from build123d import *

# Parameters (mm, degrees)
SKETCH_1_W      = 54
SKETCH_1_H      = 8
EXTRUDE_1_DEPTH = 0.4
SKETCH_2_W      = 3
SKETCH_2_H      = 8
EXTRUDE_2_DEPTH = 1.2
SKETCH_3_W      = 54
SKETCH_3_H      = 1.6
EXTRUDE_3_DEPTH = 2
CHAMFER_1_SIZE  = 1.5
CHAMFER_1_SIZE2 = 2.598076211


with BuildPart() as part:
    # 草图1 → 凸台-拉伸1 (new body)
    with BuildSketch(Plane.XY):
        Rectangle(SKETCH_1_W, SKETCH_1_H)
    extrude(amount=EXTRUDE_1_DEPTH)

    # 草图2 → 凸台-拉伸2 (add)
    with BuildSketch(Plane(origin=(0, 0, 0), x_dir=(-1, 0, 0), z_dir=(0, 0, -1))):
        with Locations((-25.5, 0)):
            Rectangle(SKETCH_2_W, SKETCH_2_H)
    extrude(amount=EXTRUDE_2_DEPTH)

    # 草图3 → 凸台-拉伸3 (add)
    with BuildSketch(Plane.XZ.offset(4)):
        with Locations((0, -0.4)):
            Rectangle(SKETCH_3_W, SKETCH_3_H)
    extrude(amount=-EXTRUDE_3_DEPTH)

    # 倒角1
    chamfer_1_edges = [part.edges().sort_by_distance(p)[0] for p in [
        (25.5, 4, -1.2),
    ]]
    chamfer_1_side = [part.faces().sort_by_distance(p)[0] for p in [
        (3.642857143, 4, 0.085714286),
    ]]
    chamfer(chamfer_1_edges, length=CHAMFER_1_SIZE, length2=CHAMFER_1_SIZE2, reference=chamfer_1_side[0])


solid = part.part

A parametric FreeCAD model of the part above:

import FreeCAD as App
import Part
import Sketcher


def edges_at(feature, points):
    """Names of the edges that pass closest to the given points."""
    edges = feature.Shape.Edges
    near = lambda p: min(range(len(edges)), key=lambda i: edges[i].distToShape(Part.Vertex(*p))[0])
    return sorted({f"Edge{near(p) + 1}" for p in points})

doc = App.newDocument("Part")
params = doc.addObject("Spreadsheet::Sheet", "Params")
for row, (alias, value) in enumerate([
    ("sketch1_width", "54 mm"),
    ("sketch1_height", "8 mm"),
    ("pad1_length", "0.4 mm"),
    ("sketch2_width", "3 mm"),
    ("sketch2_height", "8 mm"),
    ("pad2_length", "1.2 mm"),
    ("sketch3_width", "54 mm"),
    ("sketch3_height", "1.6 mm"),
    ("pad3_length", "2 mm"),
    ("chamfer_size", "1.5 mm"),
    ("chamfer_size2", "2.598076 mm"),
], start=1):
    params.set(f"A{row}", alias)
    params.set(f"B{row}", "=" + value)
    params.setAlias(f"B{row}", alias)

body = doc.addObject("PartDesign::Body", "Body")

sketch1 = body.newObject("Sketcher::SketchObject", "Sketch")
sketch1.AttachmentSupport = (doc.getObject("XY_Plane"), [""])
sketch1.MapMode = "FlatFace"
sketch1.addGeometry([
    Part.LineSegment(App.Vector(-27, 4, 0), App.Vector(-27, -4, 0)),
    Part.LineSegment(App.Vector(-27, -4, 0), App.Vector(27, -4, 0)),
    Part.LineSegment(App.Vector(27, -4, 0), App.Vector(27, 4, 0)),
    Part.LineSegment(App.Vector(27, 4, 0), App.Vector(-27, 4, 0)),
], False)
sketch1.addConstraint([
    Sketcher.Constraint("Coincident", 0, 2, 1, 1),
    Sketcher.Constraint("Coincident", 1, 2, 2, 1),
    Sketcher.Constraint("Coincident", 2, 2, 3, 1),
    Sketcher.Constraint("Coincident", 3, 2, 0, 1),
    Sketcher.Constraint("Vertical", 0),
    Sketcher.Constraint("Horizontal", 1),
    Sketcher.Constraint("Vertical", 2),
    Sketcher.Constraint("Horizontal", 3),
    Sketcher.Constraint("Symmetric", 0, 2, 2, 2, -1, 1),
    Sketcher.Constraint("DistanceX", 1, 1, 1, 2, 54.0),
    Sketcher.Constraint("DistanceY", 0, 2, 0, 1, 8.0),
])
sketch1.setExpression("Constraints[9]", "Params.sketch1_width")
sketch1.setExpression("Constraints[10]", "Params.sketch1_height")
pad1 = body.newObject("PartDesign::Pad", "Pad")
pad1.Profile = sketch1
pad1.setExpression("Length", "Params.pad1_length")

sketch2 = body.newObject("Sketcher::SketchObject", "Sketch001")
sketch2.AttachmentSupport = (doc.getObject("XY_Plane"), [""])
sketch2.MapMode = "FlatFace"
sketch2.addGeometry([
    Part.LineSegment(App.Vector(27, 4, 0), App.Vector(27, -4, 0)),
    Part.LineSegment(App.Vector(27, -4, 0), App.Vector(24, -4, 0)),
    Part.LineSegment(App.Vector(24, -4, 0), App.Vector(24, 4, 0)),
    Part.LineSegment(App.Vector(24, 4, 0), App.Vector(27, 4, 0)),
], False)
sketch2.addConstraint([
    Sketcher.Constraint("Coincident", 0, 2, 1, 1),
    Sketcher.Constraint("Coincident", 1, 2, 2, 1),
    Sketcher.Constraint("Coincident", 2, 2, 3, 1),
    Sketcher.Constraint("Coincident", 3, 2, 0, 1),
    Sketcher.Constraint("Vertical", 0),
    Sketcher.Constraint("Horizontal", 1),
    Sketcher.Constraint("Vertical", 2),
    Sketcher.Constraint("Horizontal", 3),
    Sketcher.Constraint("DistanceX", 1, 2, 1, 1, 3.0),
    Sketcher.Constraint("DistanceY", 0, 2, 0, 1, 8.0),
    Sketcher.Constraint("DistanceX", -1, 1, 0, 2, 27.0),
    Sketcher.Constraint("DistanceY", 0, 2, -1, 1, 4.0),
])
sketch2.setExpression("Constraints[8]", "Params.sketch2_width")
sketch2.setExpression("Constraints[9]", "Params.sketch2_height")
pad2 = body.newObject("PartDesign::Pad", "Pad001")
pad2.Profile = sketch2
pad2.setExpression("Length", "Params.pad2_length")
pad2.Reversed = True

sketch3 = body.newObject("Sketcher::SketchObject", "Sketch002")
sketch3.AttachmentSupport = (doc.getObject("XZ_Plane"), [""])
sketch3.MapMode = "FlatFace"
sketch3.AttachmentOffset = App.Placement(App.Vector(0, 0, 4), App.Rotation())
sketch3.addGeometry([
    Part.LineSegment(App.Vector(-27, 0.4, 0), App.Vector(-27, -1.2, 0)),
    Part.LineSegment(App.Vector(-27, -1.2, 0), App.Vector(27, -1.2, 0)),
    Part.LineSegment(App.Vector(27, -1.2, 0), App.Vector(27, 0.4, 0)),
    Part.LineSegment(App.Vector(27, 0.4, 0), App.Vector(-27, 0.4, 0)),
], False)
sketch3.addConstraint([
    Sketcher.Constraint("Coincident", 0, 2, 1, 1),
    Sketcher.Constraint("Coincident", 1, 2, 2, 1),
    Sketcher.Constraint("Coincident", 2, 2, 3, 1),
    Sketcher.Constraint("Coincident", 3, 2, 0, 1),
    Sketcher.Constraint("Vertical", 0),
    Sketcher.Constraint("Horizontal", 1),
    Sketcher.Constraint("Vertical", 2),
    Sketcher.Constraint("Horizontal", 3),
    Sketcher.Constraint("DistanceX", 1, 1, 1, 2, 54.0),
    Sketcher.Constraint("DistanceY", 0, 2, 0, 1, 1.6),
    Sketcher.Constraint("DistanceX", 0, 2, -1, 1, 27.0),
    Sketcher.Constraint("DistanceY", 0, 2, -1, 1, 1.2),
])
sketch3.setExpression("Constraints[8]", "Params.sketch3_width")
sketch3.setExpression("Constraints[9]", "Params.sketch3_height")
pad3 = body.newObject("PartDesign::Pad", "Pad002")
pad3.Profile = sketch3
pad3.setExpression("Length", "Params.pad3_length")
pad3.Reversed = True
doc.recompute()

chamfer = body.newObject("PartDesign::Chamfer", "Chamfer")
chamfer.Base = (pad3, edges_at(pad3, [(25.5, 4, -1.2)]))
chamfer.ChamferType = "Two distances"
chamfer.setExpression("Size", "Params.chamfer_size")
chamfer.setExpression("Size2", "Params.chamfer_size2")

doc.recompute()
